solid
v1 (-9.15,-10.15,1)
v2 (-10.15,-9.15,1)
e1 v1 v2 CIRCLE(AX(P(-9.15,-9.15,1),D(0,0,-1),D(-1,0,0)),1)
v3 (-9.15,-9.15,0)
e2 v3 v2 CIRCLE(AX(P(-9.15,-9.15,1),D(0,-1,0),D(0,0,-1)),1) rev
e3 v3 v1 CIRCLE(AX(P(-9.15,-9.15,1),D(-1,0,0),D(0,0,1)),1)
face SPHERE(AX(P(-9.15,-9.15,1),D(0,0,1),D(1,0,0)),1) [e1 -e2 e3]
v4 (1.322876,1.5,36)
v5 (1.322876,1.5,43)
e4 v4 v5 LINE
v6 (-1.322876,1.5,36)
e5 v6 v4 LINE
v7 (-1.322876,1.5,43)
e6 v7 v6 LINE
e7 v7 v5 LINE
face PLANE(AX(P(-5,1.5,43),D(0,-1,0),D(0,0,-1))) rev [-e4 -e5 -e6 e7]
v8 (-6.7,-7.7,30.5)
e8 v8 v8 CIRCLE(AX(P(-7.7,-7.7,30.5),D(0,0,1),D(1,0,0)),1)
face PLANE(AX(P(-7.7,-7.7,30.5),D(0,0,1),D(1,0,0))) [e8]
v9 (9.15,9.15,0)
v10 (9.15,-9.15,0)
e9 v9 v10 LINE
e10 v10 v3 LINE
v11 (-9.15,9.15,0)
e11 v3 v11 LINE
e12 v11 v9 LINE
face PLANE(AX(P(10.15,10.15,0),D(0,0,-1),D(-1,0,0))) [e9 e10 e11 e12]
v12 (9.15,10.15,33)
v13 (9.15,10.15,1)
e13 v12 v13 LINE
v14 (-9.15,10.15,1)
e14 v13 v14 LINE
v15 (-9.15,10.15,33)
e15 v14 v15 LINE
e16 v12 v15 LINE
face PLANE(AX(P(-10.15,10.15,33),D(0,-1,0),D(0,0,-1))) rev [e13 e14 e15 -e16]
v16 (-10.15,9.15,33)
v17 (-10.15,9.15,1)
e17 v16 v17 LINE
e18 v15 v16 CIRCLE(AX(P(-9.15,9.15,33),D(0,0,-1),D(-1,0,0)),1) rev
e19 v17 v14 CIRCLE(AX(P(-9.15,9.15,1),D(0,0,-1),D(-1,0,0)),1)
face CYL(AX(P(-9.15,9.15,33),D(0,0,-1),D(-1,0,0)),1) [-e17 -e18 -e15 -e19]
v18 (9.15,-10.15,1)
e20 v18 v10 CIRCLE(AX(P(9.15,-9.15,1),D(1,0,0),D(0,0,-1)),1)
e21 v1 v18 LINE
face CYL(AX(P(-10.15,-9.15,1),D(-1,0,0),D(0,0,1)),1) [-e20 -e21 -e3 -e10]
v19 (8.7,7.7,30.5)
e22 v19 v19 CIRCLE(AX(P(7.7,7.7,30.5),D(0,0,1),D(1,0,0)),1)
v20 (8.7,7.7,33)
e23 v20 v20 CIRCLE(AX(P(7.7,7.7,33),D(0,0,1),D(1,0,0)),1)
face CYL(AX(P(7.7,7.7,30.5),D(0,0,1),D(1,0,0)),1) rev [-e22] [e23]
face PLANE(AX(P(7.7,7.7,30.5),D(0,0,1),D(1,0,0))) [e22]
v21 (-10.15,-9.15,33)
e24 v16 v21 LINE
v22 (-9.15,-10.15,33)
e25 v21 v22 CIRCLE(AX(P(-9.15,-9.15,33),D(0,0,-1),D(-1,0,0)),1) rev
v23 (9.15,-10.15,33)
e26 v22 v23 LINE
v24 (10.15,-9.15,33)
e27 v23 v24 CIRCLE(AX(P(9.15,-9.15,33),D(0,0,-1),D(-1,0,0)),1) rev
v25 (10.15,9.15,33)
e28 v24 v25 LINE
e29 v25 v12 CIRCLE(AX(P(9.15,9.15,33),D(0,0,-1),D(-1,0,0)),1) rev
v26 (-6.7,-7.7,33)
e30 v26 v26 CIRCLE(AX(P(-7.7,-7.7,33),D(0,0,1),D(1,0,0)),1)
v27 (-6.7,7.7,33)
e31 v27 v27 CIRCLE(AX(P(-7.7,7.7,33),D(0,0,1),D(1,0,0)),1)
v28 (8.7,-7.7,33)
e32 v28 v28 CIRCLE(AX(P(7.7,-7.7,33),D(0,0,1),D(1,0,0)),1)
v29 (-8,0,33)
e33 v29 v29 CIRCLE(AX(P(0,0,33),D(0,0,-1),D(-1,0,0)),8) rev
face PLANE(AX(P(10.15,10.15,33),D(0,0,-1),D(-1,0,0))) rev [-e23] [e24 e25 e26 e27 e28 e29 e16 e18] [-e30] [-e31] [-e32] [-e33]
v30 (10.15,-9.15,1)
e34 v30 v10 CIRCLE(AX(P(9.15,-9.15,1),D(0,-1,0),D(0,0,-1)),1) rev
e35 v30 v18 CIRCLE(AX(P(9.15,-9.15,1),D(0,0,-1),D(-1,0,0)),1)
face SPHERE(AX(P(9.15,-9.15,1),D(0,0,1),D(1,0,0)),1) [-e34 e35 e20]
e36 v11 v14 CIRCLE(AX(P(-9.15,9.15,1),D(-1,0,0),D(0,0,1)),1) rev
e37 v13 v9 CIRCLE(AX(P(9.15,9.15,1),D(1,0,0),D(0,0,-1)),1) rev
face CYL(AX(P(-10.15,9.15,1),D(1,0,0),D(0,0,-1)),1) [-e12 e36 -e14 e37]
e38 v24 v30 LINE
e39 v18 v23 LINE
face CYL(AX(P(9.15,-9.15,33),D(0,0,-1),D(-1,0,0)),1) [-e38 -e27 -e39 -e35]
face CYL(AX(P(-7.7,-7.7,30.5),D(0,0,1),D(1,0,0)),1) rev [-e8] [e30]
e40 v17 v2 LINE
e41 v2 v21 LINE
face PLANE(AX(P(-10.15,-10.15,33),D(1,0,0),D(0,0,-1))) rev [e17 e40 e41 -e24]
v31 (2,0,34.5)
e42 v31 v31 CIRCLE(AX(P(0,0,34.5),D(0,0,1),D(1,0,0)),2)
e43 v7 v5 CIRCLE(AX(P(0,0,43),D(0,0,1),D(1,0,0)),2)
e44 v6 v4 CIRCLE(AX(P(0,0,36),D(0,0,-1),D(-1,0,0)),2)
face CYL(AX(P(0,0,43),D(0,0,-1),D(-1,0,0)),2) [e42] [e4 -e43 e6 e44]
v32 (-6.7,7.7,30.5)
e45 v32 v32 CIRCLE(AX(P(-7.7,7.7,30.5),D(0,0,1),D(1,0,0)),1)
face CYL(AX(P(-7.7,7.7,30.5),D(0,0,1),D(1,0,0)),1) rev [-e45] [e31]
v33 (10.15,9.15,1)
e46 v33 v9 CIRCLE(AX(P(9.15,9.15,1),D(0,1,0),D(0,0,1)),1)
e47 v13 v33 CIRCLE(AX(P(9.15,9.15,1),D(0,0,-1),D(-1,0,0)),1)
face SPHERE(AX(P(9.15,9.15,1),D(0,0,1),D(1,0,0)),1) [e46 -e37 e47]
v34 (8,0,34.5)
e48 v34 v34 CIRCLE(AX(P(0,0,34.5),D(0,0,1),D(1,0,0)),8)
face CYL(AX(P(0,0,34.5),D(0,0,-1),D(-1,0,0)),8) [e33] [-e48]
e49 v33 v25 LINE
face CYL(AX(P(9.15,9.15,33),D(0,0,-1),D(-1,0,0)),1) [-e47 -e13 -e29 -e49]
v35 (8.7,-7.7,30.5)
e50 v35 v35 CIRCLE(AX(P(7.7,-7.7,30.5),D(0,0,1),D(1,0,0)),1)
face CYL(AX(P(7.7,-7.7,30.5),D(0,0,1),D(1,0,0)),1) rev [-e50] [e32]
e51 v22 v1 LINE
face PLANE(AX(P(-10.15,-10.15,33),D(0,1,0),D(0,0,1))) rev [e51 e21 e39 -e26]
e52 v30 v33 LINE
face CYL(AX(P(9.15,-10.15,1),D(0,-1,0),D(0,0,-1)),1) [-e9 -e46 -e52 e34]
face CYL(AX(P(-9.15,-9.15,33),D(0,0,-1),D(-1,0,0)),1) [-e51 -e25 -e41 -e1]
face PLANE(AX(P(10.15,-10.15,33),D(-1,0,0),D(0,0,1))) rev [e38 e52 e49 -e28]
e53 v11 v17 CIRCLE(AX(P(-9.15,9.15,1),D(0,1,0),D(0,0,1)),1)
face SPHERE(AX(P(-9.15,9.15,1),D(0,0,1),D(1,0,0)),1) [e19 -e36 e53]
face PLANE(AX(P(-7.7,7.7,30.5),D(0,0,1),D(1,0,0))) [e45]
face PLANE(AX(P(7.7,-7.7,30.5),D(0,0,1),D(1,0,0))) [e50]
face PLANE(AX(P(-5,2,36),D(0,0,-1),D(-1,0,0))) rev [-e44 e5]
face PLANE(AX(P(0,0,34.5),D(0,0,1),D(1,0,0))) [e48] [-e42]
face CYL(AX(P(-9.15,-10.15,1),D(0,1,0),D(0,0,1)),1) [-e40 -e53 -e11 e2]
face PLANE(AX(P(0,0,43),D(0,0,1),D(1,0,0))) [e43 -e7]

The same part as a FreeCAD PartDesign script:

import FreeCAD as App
import Part
import Sketcher
Q = App.Units.Quantity


def edges_at(feature, points):
    """Names of the edges that pass closest to the given points."""
    edges = feature.Shape.Edges
    near = lambda p: min(range(len(edges)), key=lambda i: edges[i].distToShape(Part.Vertex(*p))[0])
    return sorted({f"Edge{near(p) + 1}" for p in points})

doc = App.newDocument("Part")
body = doc.addObject("PartDesign::Body", "Body")

# Sketch on XY plane
sketch1 = body.newObject("Sketcher::SketchObject", "Sketch")
sketch1.AttachmentSupport = (doc.getObject("XY_Plane"), [""])
sketch1.MapMode = "FlatFace"
sketch1.addGeometry(Part.LineSegment(App.Vector(-10, 10, 0), App.Vector(-10, -10, 0)), False)
sketch1.addGeometry(Part.LineSegment(App.Vector(-10, -10, 0), App.Vector(10, -10, 0)), False)
sketch1.addGeometry(Part.LineSegment(App.Vector(10, -10, 0), App.Vector(10, 10, 0)), False)
sketch1.addGeometry(Part.LineSegment(App.Vector(10, 10, 0), App.Vector(-10, 10, 0)), False)
sketch1.addConstraint(Sketcher.Constraint("Coincident", 0, 2, 1, 1))
sketch1.addConstraint(Sketcher.Constraint("Coincident", 1, 2, 2, 1))
sketch1.addConstraint(Sketcher.Constraint("Coincident", 2, 2, 3, 1))
sketch1.addConstraint(Sketcher.Constraint("Coincident", 3, 2, 0, 1))
sketch1.addConstraint(Sketcher.Constraint("Vertical", 0))
sketch1.addConstraint(Sketcher.Constraint("Horizontal", 1))
sketch1.addConstraint(Sketcher.Constraint("Vertical", 2))
sketch1.addConstraint(Sketcher.Constraint("Horizontal", 3))
sketch1.addConstraint(Sketcher.Constraint("Symmetric", 0, 2, 2, 2, -1, 1))
sketch1.addConstraint(Sketcher.Constraint("Equal", 3, 0))
sketch1.addConstraint(Sketcher.Constraint("DistanceX", 1, 1, 1, 2, Q("20.3 mm")))
pad1 = body.newObject("PartDesign::Pad", "Pad")
pad1.Profile = sketch1
pad1.Length = 33

# Sketch on XY plane
sketch2 = body.newObject("Sketcher::SketchObject", "Sketch001")
sketch2.AttachmentSupport = (doc.getObject("XY_Plane"), [""])
sketch2.MapMode = "FlatFace"
sketch2.AttachmentOffset = App.Placement(App.Vector(0, 0, 33), App.Rotation())
sketch2.addGeometry(Part.Circle(App.Vector(0, 0, 0), App.Vector(0, 0, 1), 8), False)
sketch2.addConstraint(Sketcher.Constraint("Coincident", 0, 3, -1, 1))
sketch2.addConstraint(Sketcher.Constraint("Diameter", 0, Q("16 mm")))
pad2 = body.newObject("PartDesign::Pad", "Pad001")
pad2.Profile = sketch2
pad2.Length = 1.5

# Sketch on XY plane
sketch3 = body.newObject("Sketcher::SketchObject", "Sketch002")
sketch3.AttachmentSupport = (doc.getObject("XY_Plane"), [""])
sketch3.MapMode = "FlatFace"
sketch3.AttachmentOffset = App.Placement(App.Vector(0, 0, 34.5), App.Rotation())
sketch3.addGeometry(Part.Circle(App.Vector(0, 0, 0), App.Vector(0, 0, 1), 2), False)
sketch3.addConstraint(Sketcher.Constraint("Coincident", 0, 3, -1, 1))
sketch3.addConstraint(Sketcher.Constraint("Diameter", 0, Q("4 mm")))
pad3 = body.newObject("PartDesign::Pad", "Pad002")
pad3.Profile = sketch3
pad3.Length = 8.5

# Sketch on YZ plane
sketch4 = body.newObject("Sketcher::SketchObject", "Sketch003")
sketch4.AttachmentSupport = (doc.getObject("YZ_Plane"), [""])
sketch4.MapMode = "FlatFace"
sketch4.addGeometry(Part.LineSegment(App.Vector(2, 43, 0), App.Vector(1.5, 43, 0)), False)
sketch4.addGeometry(Part.LineSegment(App.Vector(1.5, 43, 0), App.Vector(1.5, 36, 0)), False)
sketch4.addGeometry(Part.LineSegment(App.Vector(1.5, 36, 0), App.Vector(2, 36, 0)), False)
sketch4.addGeometry(Part.LineSegment(App.Vector(2, 36, 0), App.Vector(2, 43, 0)), False)
sketch4.addConstraint(Sketcher.Constraint("Coincident", 0, 2, 1, 1))
sketch4.addConstraint(Sketcher.Constraint("Coincident", 1, 2, 2, 1))
sketch4.addConstraint(Sketcher.Constraint("Coincident", 2, 2, 3, 1))
sketch4.addConstraint(Sketcher.Constraint("Coincident", 3, 2, 0, 1))
sketch4.addConstraint(Sketcher.Constraint("Horizontal", 0))
sketch4.addConstraint(Sketcher.Constraint("Vertical", 1))
sketch4.addConstraint(Sketcher.Constraint("Horizontal", 2))
sketch4.addConstraint(Sketcher.Constraint("Vertical", 3))
sketch4.addConstraint(Sketcher.Constraint("DistanceY", 1, 2, 1, 1, Q("7 mm")))
sketch4.addConstraint(Sketcher.Constraint("DistanceX", 0, 2, 0, 1, Q("0.5 mm")))
sketch4.addConstraint(Sketcher.Constraint("DistanceY", -1, 1, 0, 2, Q("43 mm")))
sketch4.addConstraint(Sketcher.Constraint("DistanceX", -1, 1, 2, 2, Q("2 mm")))
pocket1 = body.newObject("PartDesign::Pocket", "Pocket")
pocket1.Profile = sketch4
pocket1.Length = 10
pocket1.Midplane = True

# Sketch on XY plane
sketch5 = body.newObject("Sketcher::SketchObject", "Sketch004")
sketch5.AttachmentSupport = (doc.getObject("XY_Plane"), [""])
sketch5.MapMode = "FlatFace"
sketch5.AttachmentOffset = App.Placement(App.Vector(0, 0, 33), App.Rotation())
sketch5.addGeometry(Part.Circle(App.Vector(-7.7, 7.7, 0), App.Vector(0, 0, 1), 1), False)
sketch5.addGeometry(Part.Circle(App.Vector(7.7, 7.7, 0), App.Vector(0, 0, 1), 1), False)
sketch5.addGeometry(Part.Circle(App.Vector(7.7, -7.7, 0), App.Vector(0, 0, 1), 1), False)
sketch5.addGeometry(Part.Circle(App.Vector(-7.7, -7.7, 0), App.Vector(0, 0, 1), 1), False)
sketch5.addConstraint(Sketcher.Constraint("Equal", 0, 1))
sketch5.addConstraint(Sketcher.Constraint("Equal", 1, 2))
sketch5.addConstraint(Sketcher.Constraint("Equal", 2, 3))
sketch5.addConstraint(Sketcher.Constraint("Symmetric", 0, 3, 2, 3, -1, 1))
sketch5.addConstraint(Sketcher.Constraint("Symmetric", 1, 3, 3, 3, -1, 1))
sketch5.addConstraint(Sketcher.Constraint("Symmetric", 0, 3, 1, 3, -2))
sketch5.addConstraint(Sketcher.Constraint("Diameter", 0, Q("2 mm")))
sketch5.addConstraint(Sketcher.Constraint("DistanceX", 0, 3, -1, 1, Q("7.7 mm")))
sketch5.addConstraint(Sketcher.Constraint("DistanceY", -1, 1, 0, 3, Q("7.7 mm")))
pocket2 = body.newObject("PartDesign::Pocket", "Pocket001")
pocket2.Profile = sketch5
pocket2.Length = 2.5
doc.recompute()

fillet = body.newObject("PartDesign::Fillet", "Fillet")
fillet.Base = (pocket2, edges_at(pocket2, [
    (0, -10.15, 0),
    (-10.15, 0, 0),
    (0, 10.15, 0),
    (10.15, 0, 0),
    (10.15, -10.15, 16.5),
    (-10.15, -10.15, 16.5),
    (-10.15, 10.15, 16.5),
    (10.15, 10.15, 16.5),
]))
fillet.Radius = 1

doc.recompute()
